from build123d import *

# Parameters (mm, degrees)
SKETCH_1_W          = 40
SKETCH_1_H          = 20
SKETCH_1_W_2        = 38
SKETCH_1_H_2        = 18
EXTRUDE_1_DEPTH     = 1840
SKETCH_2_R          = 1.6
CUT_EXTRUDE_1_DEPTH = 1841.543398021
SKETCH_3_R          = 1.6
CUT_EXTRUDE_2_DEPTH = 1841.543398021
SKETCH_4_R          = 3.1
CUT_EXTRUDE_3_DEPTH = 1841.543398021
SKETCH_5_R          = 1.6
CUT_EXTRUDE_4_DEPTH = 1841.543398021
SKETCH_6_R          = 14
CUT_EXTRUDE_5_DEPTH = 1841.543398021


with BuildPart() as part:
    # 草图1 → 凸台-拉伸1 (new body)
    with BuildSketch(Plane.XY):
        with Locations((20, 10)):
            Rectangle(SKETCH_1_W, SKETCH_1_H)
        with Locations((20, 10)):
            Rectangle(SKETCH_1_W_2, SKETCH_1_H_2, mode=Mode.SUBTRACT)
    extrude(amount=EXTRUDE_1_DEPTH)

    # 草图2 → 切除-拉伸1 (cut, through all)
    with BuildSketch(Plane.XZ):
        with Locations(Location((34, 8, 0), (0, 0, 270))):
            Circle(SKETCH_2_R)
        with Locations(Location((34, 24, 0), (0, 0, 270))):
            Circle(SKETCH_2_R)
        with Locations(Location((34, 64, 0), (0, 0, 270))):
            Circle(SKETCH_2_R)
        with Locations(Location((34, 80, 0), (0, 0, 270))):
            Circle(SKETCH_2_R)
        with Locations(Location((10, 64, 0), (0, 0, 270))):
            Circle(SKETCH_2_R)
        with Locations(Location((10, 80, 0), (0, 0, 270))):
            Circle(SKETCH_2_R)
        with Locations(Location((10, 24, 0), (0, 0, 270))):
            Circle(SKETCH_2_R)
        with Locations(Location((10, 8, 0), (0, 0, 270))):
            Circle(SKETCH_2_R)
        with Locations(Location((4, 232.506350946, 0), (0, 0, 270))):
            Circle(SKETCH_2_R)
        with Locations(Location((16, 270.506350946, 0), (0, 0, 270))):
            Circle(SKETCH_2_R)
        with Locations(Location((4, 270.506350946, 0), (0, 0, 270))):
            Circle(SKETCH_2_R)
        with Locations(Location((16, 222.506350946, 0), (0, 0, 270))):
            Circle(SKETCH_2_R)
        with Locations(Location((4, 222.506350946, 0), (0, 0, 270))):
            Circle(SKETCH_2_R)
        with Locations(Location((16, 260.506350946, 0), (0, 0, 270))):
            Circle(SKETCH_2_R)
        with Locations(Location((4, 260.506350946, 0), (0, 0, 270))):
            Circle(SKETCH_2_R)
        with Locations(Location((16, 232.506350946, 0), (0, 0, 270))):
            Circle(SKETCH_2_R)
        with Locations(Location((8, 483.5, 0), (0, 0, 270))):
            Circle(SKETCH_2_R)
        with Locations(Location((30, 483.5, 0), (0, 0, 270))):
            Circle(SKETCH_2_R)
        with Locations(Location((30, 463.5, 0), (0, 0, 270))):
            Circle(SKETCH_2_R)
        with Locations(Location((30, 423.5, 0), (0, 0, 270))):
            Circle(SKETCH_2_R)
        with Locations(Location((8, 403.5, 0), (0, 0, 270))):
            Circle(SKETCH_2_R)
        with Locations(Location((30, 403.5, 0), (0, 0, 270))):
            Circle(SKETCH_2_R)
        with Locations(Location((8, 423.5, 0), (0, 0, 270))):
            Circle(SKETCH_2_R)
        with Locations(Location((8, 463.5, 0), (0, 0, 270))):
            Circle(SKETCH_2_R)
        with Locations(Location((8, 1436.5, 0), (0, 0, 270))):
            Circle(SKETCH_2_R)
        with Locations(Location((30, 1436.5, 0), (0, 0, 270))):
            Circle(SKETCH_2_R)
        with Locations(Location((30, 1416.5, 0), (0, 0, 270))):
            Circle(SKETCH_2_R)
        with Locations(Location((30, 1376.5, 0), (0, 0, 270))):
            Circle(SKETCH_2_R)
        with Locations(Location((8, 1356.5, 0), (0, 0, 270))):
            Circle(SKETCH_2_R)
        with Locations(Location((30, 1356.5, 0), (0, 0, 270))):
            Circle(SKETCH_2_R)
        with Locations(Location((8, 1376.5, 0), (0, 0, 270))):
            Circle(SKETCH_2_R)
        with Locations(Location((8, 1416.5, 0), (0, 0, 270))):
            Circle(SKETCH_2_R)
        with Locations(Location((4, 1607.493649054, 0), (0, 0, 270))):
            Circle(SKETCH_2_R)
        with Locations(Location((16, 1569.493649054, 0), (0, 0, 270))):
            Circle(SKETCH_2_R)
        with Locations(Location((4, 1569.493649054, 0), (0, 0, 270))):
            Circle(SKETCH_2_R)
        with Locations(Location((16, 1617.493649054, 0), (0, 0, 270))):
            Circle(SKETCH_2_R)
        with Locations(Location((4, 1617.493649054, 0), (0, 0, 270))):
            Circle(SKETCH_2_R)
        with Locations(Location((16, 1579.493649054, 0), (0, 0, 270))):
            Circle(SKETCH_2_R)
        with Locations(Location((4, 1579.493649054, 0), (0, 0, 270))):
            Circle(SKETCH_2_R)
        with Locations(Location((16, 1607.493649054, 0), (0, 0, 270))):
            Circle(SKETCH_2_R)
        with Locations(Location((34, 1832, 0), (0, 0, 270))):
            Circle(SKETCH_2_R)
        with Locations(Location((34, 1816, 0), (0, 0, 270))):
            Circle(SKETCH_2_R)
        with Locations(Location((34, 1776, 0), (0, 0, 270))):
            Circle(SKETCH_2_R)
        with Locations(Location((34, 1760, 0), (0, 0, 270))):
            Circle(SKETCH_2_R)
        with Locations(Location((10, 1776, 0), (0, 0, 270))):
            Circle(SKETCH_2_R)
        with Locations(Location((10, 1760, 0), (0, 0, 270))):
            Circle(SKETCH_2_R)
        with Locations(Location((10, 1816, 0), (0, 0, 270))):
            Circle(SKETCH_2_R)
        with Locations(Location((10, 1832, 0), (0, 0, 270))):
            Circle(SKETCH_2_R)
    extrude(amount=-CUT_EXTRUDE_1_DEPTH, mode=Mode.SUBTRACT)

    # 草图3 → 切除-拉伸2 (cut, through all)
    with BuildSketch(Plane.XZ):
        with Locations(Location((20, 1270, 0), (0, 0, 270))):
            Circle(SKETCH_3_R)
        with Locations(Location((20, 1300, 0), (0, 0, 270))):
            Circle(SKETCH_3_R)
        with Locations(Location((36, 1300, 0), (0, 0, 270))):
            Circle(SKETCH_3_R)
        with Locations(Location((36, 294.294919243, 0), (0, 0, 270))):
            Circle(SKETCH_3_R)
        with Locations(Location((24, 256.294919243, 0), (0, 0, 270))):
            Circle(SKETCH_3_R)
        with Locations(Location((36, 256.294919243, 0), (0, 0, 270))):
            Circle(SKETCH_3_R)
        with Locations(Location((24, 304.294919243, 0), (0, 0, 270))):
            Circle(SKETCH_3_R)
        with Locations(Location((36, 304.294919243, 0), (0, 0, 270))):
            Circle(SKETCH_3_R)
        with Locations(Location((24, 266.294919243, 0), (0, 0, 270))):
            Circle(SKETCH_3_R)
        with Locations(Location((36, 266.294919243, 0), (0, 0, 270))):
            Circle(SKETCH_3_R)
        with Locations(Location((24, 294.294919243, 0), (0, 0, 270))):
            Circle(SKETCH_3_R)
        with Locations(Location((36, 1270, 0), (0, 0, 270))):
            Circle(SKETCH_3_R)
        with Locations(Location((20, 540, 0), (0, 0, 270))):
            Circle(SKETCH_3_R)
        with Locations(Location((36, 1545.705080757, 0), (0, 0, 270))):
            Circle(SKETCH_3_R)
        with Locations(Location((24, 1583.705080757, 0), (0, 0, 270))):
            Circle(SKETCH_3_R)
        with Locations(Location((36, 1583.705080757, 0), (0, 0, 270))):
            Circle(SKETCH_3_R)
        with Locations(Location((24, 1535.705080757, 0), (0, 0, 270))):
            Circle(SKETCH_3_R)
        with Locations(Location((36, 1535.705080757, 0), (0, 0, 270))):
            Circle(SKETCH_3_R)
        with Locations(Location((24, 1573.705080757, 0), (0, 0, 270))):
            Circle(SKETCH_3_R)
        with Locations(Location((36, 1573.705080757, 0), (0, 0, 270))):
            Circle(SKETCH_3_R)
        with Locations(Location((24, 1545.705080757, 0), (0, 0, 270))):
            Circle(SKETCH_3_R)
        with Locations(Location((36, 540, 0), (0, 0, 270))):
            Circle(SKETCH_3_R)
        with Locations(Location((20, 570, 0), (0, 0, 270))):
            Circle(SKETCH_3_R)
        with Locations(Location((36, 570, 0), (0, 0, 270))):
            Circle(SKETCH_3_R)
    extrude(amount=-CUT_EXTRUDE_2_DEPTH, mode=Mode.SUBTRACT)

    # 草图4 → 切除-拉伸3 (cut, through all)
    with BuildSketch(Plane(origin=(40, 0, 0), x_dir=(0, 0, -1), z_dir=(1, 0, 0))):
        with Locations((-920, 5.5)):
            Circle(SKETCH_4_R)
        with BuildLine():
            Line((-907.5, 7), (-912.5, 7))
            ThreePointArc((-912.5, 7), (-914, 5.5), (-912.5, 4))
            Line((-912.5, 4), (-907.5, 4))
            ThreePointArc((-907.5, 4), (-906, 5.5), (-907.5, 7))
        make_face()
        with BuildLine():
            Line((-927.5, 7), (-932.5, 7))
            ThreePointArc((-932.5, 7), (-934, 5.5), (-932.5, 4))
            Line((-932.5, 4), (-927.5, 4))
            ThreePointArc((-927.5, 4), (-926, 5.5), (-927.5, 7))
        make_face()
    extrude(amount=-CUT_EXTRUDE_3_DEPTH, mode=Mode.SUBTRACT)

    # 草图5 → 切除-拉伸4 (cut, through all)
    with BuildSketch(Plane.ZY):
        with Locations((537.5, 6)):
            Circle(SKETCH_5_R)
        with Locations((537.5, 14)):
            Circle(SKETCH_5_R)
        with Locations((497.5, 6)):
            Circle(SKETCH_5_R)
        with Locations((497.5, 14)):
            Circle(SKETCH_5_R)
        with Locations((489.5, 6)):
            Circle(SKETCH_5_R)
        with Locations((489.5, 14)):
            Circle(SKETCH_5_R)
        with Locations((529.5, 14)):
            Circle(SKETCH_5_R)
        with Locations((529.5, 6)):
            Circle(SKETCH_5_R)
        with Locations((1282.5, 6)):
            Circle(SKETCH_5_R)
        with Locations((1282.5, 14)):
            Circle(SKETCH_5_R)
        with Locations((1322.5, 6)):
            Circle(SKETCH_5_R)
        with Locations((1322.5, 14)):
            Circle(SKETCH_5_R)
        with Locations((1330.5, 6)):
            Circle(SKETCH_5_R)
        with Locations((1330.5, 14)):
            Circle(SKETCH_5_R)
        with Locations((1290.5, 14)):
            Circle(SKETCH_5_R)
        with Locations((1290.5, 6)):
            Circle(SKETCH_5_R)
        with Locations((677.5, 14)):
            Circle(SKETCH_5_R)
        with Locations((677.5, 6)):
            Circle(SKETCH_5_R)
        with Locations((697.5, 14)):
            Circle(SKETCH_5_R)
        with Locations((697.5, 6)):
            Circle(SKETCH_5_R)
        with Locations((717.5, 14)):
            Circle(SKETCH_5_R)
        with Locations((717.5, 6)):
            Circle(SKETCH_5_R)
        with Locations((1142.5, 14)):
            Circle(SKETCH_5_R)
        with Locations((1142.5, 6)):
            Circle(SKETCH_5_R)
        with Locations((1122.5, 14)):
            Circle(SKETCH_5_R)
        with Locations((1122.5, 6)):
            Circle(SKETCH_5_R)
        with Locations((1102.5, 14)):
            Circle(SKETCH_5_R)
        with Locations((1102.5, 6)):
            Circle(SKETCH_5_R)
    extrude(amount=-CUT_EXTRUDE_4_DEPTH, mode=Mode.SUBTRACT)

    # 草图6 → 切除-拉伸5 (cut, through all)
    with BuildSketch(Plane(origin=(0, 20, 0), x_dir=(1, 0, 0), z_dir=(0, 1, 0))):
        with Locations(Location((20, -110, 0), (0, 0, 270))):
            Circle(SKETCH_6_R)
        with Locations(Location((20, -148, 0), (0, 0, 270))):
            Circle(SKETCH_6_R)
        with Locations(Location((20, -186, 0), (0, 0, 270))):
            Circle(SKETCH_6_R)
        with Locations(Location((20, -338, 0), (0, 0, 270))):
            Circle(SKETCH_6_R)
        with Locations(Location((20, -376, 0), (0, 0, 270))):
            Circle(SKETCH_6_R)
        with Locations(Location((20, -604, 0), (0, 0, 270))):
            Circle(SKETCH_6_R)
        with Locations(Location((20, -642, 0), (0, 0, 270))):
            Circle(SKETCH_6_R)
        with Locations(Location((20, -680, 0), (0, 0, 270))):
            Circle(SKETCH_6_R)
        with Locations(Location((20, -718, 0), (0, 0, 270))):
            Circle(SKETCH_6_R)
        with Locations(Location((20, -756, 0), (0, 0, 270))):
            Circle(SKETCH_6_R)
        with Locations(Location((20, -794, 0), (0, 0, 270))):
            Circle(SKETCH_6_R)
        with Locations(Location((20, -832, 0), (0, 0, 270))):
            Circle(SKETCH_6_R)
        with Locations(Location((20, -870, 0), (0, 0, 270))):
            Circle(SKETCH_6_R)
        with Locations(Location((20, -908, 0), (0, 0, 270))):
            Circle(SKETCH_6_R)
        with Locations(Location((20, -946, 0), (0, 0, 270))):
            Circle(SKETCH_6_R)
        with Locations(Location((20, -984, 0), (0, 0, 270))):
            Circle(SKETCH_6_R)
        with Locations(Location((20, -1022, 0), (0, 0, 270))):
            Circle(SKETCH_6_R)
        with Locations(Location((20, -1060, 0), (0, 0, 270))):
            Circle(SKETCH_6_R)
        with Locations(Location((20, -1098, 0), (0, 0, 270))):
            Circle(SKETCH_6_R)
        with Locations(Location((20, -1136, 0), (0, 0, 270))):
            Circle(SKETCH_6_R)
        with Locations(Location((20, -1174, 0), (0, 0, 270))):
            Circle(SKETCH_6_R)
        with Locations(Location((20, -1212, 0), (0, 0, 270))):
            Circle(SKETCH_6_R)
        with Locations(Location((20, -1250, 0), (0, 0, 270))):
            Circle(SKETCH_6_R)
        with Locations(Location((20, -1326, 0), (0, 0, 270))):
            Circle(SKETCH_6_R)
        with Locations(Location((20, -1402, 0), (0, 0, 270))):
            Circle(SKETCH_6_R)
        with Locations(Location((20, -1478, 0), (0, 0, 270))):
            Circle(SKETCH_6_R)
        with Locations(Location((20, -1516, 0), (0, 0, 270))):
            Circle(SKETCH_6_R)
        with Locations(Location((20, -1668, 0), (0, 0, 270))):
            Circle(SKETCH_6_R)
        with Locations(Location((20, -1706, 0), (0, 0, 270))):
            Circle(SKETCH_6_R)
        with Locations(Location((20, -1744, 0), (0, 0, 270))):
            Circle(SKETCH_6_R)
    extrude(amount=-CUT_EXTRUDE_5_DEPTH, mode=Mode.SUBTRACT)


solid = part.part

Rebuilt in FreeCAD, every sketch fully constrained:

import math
import FreeCAD as App
import Part
import Sketcher
from FreeCAD import Vector
Q = App.Units.Quantity


def add_polygon(sketch, points):
    """Adds a closed chain of lines whose ends are joined by coincident constraints."""
    first, n = sketch.GeometryCount, len(points)
    for a, b in zip(points, points[1:] + points[:1]):
        sketch.addGeometry(Part.LineSegment(App.Vector(*a, 0), App.Vector(*b, 0)), False)
    for i in range(n):
        sketch.addConstraint(Sketcher.Constraint("Coincident", first + i, 2, first + (i + 1) % n, 1))

doc = App.newDocument("Part")
params = doc.addObject("Spreadsheet::Sheet", "Params")
for row, (alias, value) in enumerate([
    ("sketch1_width", "40 mm"),
    ("sketch1_width2", "38 mm"),
    ("sketch1_height", "20 mm"),
    ("sketch1_height2", "18 mm"),
    ("pad1_length", "1840 mm"),
    ("sketch2_diameter", "3.2 mm"),
    ("sketch3_diameter", "3.2 mm"),
    ("sketch4_diameter", "6.2 mm"),
    ("sketch4_radius", "1.5 mm"),
    ("sketch4_height", "5 mm"),
    ("sketch5_diameter", "3.2 mm"),
    ("sketch6_diameter", "28 mm"),
], start=1):
    params.set(f"A{row}", alias)
    params.set(f"B{row}", "=" + value)
    params.setAlias(f"B{row}", alias)

body = doc.addObject("PartDesign::Body", "Body")

# Sketch on XY plane
sketch1 = body.newObject("Sketcher::SketchObject", "Sketch")
sketch1.AttachmentSupport = (doc.getObject("XY_Plane"), [""])
sketch1.MapMode = "FlatFace"
add_polygon(sketch1, [(0, 20), (0, 0), (40, 0), (40, 20)])  # lines 0-3
add_polygon(sketch1, [(39, 1), (1, 1), (1, 19), (39, 19)])  # lines 4-7
sketch1.addConstraint([
    Sketcher.Constraint("Vertical", 0),
    Sketcher.Constraint("Horizontal", 1),
    Sketcher.Constraint("Vertical", 2),
    Sketcher.Constraint("Horizontal", 3),
    Sketcher.Constraint("Horizontal", 4),
    Sketcher.Constraint("Vertical", 5),
    Sketcher.Constraint("Horizontal", 6),
    Sketcher.Constraint("Vertical", 7),
    Sketcher.Constraint("Coincident", 0, 2, -1, 1),
    Sketcher.Constraint("DistanceX", 1, 1, 1, 2, Q("40 mm")),
    Sketcher.Constraint("DistanceX", 4, 2, 4, 1, Q("38 mm")),
    Sketcher.Constraint("DistanceY", 0, 2, 0, 1, Q("20 mm")),
    Sketcher.Constraint("DistanceY", 5, 1, 5, 2, Q("18 mm")),
    Sketcher.Constraint("DistanceX", -1, 1, 4, 2, Q("1 mm")),
    Sketcher.Constraint("DistanceY", -1, 1, 4, 2, Q("1 mm")),
])
sketch1.setExpression("Constraints[17]", "Params.sketch1_width")
sketch1.setExpression("Constraints[18]", "Params.sketch1_width2")
sketch1.setExpression("Constraints[19]", "Params.sketch1_height")
sketch1.setExpression("Constraints[20]", "Params.sketch1_height2")
pad1 = body.newObject("PartDesign::Pad", "Pad")
pad1.Profile = sketch1
pad1.setExpression("Length", "Params.pad1_length")

# Sketch on XZ plane
sketch2 = body.newObject("Sketcher::SketchObject", "Sketch001")
sketch2.AttachmentSupport = (doc.getObject("XZ_Plane"), [""])
sketch2.MapMode = "FlatFace"
sketch2.addGeometry([
    Part.Circle(Vector(34, 8, 0), Vector(0, 0, 1), 1.6),  # 0
    Part.Circle(Vector(34, 24, 0), Vector(0, 0, 1), 1.6),  # 1
    Part.Circle(Vector(34, 64, 0), Vector(0, 0, 1), 1.6),  # 2
    Part.Circle(Vector(34, 80, 0), Vector(0, 0, 1), 1.6),  # 3
    Part.Circle(Vector(10, 64, 0), Vector(0, 0, 1), 1.6),  # 4
    Part.Circle(Vector(10, 80, 0), Vector(0, 0, 1), 1.6),  # 5
    Part.Circle(Vector(10, 24, 0), Vector(0, 0, 1), 1.6),  # 6
    Part.Circle(Vector(10, 8, 0), Vector(0, 0, 1), 1.6),  # 7
    Part.Circle(Vector(4, 232.5, 0), Vector(0, 0, 1), 1.6),  # 8
    Part.Circle(Vector(16, 270.5, 0), Vector(0, 0, 1), 1.6),  # 9
    Part.Circle(Vector(4, 270.5, 0), Vector(0, 0, 1), 1.6),  # 10
    Part.Circle(Vector(16, 222.5, 0), Vector(0, 0, 1), 1.6),  # 11
    Part.Circle(Vector(4, 222.5, 0), Vector(0, 0, 1), 1.6),  # 12
    Part.Circle(Vector(16, 260.5, 0), Vector(0, 0, 1), 1.6),  # 13
    Part.Circle(Vector(4, 260.5, 0), Vector(0, 0, 1), 1.6),  # 14
    Part.Circle(Vector(16, 232.5, 0), Vector(0, 0, 1), 1.6),  # 15
    Part.Circle(Vector(8, 483.5, 0), Vector(0, 0, 1), 1.6),  # 16
    Part.Circle(Vector(30, 483.5, 0), Vector(0, 0, 1), 1.6),  # 17
    Part.Circle(Vector(30, 463.5, 0), Vector(0, 0, 1), 1.6),  # 18
    Part.Circle(Vector(30, 423.5, 0), Vector(0, 0, 1), 1.6),  # 19
    Part.Circle(Vector(8, 403.5, 0), Vector(0, 0, 1), 1.6),  # 20
    Part.Circle(Vector(30, 403.5, 0), Vector(0, 0, 1), 1.6),  # 21
    Part.Circle(Vector(8, 423.5, 0), Vector(0, 0, 1), 1.6),  # 22
    Part.Circle(Vector(8, 463.5, 0), Vector(0, 0, 1), 1.6),  # 23
    Part.Circle(Vector(8, 1436.5, 0), Vector(0, 0, 1), 1.6),  # 24
    Part.Circle(Vector(30, 1436.5, 0), Vector(0, 0, 1), 1.6),  # 25
    Part.Circle(Vector(30, 1416.5, 0), Vector(0, 0, 1), 1.6),  # 26
    Part.Circle(Vector(30, 1376.5, 0), Vector(0, 0, 1), 1.6),  # 27
    Part.Circle(Vector(8, 1356.5, 0), Vector(0, 0, 1), 1.6),  # 28
    Part.Circle(Vector(30, 1356.5, 0), Vector(0, 0, 1), 1.6),  # 29
    Part.Circle(Vector(8, 1376.5, 0), Vector(0, 0, 1), 1.6),  # 30
    Part.Circle(Vector(8, 1416.5, 0), Vector(0, 0, 1), 1.6),  # 31
    Part.Circle(Vector(4, 1607.5, 0), Vector(0, 0, 1), 1.6),  # 32
    Part.Circle(Vector(16, 1569.5, 0), Vector(0, 0, 1), 1.6),  # 33
    Part.Circle(Vector(4, 1569.5, 0), Vector(0, 0, 1), 1.6),  # 34
    Part.Circle(Vector(16, 1617.5, 0), Vector(0, 0, 1), 1.6),  # 35
    Part.Circle(Vector(4, 1617.5, 0), Vector(0, 0, 1), 1.6),  # 36
    Part.Circle(Vector(16, 1579.5, 0), Vector(0, 0, 1), 1.6),  # 37
    Part.Circle(Vector(4, 1579.5, 0), Vector(0, 0, 1), 1.6),  # 38
    Part.Circle(Vector(16, 1607.5, 0), Vector(0, 0, 1), 1.6),  # 39
    Part.Circle(Vector(34, 1832, 0), Vector(0, 0, 1), 1.6),  # 40
    Part.Circle(Vector(34, 1816, 0), Vector(0, 0, 1), 1.6),  # 41
    Part.Circle(Vector(34, 1776, 0), Vector(0, 0, 1), 1.6),  # 42
    Part.Circle(Vector(34, 1760, 0), Vector(0, 0, 1), 1.6),  # 43
    Part.Circle(Vector(10, 1776, 0), Vector(0, 0, 1), 1.6),  # 44
    Part.Circle(Vector(10, 1760, 0), Vector(0, 0, 1), 1.6),  # 45
    Part.Circle(Vector(10, 1816, 0), Vector(0, 0, 1), 1.6),  # 46
    Part.Circle(Vector(10, 1832, 0), Vector(0, 0, 1), 1.6),  # 47
], False)
sketch2.addConstraint([
    Sketcher.Constraint("Equal", 0, 1),
    Sketcher.Constraint("Equal", 1, 2),
    Sketcher.Constraint("Equal", 2, 3),
    Sketcher.Constraint("Equal", 3, 4),
    Sketcher.Constraint("Equal", 4, 5),
    Sketcher.Constraint("Equal", 5, 6),
    Sketcher.Constraint("Equal", 6, 7),
    Sketcher.Constraint("Equal", 7, 8),
    Sketcher.Constraint("Equal", 8, 9),
    Sketcher.Constraint("Equal", 9, 10),
    Sketcher.Constraint("Equal", 10, 11),
    Sketcher.Constraint("Equal", 11, 12),
    Sketcher.Constraint("Equal", 12, 13),
    Sketcher.Constraint("Equal", 13, 14),
    Sketcher.Constraint("Equal", 14, 15),
    Sketcher.Constraint("Equal", 15, 16),
    Sketcher.Constraint("Equal", 16, 17),
    Sketcher.Constraint("Equal", 17, 18),
    Sketcher.Constraint("Equal", 18, 19),
    Sketcher.Constraint("Equal", 19, 20),
    Sketcher.Constraint("Equal", 20, 21),
    Sketcher.Constraint("Equal", 21, 22),
    Sketcher.Constraint("Equal", 22, 23),
    Sketcher.Constraint("Equal", 23, 24),
    Sketcher.Constraint("Equal", 24, 25),
    Sketcher.Constraint("Equal", 25, 26),
    Sketcher.Constraint("Equal", 26, 27),
    Sketcher.Constraint("Equal", 27, 28),
    Sketcher.Constraint("Equal", 28, 29),
    Sketcher.Constraint("Equal", 29, 30),
    Sketcher.Constraint("Equal", 30, 31),
    Sketcher.Constraint("Equal", 31, 32),
    Sketcher.Constraint("Equal", 32, 33),
    Sketcher.Constraint("Equal", 33, 34),
    Sketcher.Constraint("Equal", 34, 35),
    Sketcher.Constraint("Equal", 35, 36),
    Sketcher.Constraint("Equal", 36, 37),
    Sketcher.Constraint("Equal", 37, 38),
    Sketcher.Constraint("Equal", 38, 39),
    Sketcher.Constraint("Equal", 39, 40),
    Sketcher.Constraint("Equal", 40, 41),
    Sketcher.Constraint("Equal", 41, 42),
    Sketcher.Constraint("Equal", 42, 43),
    Sketcher.Constraint("Equal", 43, 44),
    Sketcher.Constraint("Equal", 44, 45),
    Sketcher.Constraint("Equal", 45, 46),
    Sketcher.Constraint("Equal", 46, 47),
    Sketcher.Constraint("Horizontal", 2, 3, 4, 3),
    Sketcher.Constraint("Horizontal", 3, 3, 5, 3),
    Sketcher.Constraint("Horizontal", 1, 3, 6, 3),
    Sketcher.Constraint("Horizontal", 0, 3, 7, 3),
    Sketcher.Constraint("Horizontal", 9, 3, 10, 3),
    Sketcher.Constraint("Horizontal", 11, 3, 12, 3),
    Sketcher.Constraint("Horizontal", 13, 3, 14, 3),
    Sketcher.Constraint("Horizontal", 8, 3, 15, 3),
    Sketcher.Constraint("Horizontal", 16, 3, 17, 3),
    Sketcher.Constraint("Horizontal", 20, 3, 21, 3),
    Sketcher.Constraint("Horizontal", 19, 3, 22, 3),
    Sketcher.Constraint("Horizontal", 18, 3, 23, 3),
    Sketcher.Constraint("Horizontal", 24, 3, 25, 3),
    Sketcher.Constraint("Horizontal", 28, 3, 29, 3),
    Sketcher.Constraint("Horizontal", 27, 3, 30, 3),
    Sketcher.Constraint("Horizontal", 26, 3, 31, 3),
    Sketcher.Constraint("Horizontal", 33, 3, 34, 3),
    Sketcher.Constraint("Horizontal", 35, 3, 36, 3),
    Sketcher.Constraint("Horizontal", 37, 3, 38, 3),
    Sketcher.Constraint("Horizontal", 32, 3, 39, 3),
    Sketcher.Constraint("Horizontal", 42, 3, 44, 3),
    Sketcher.Constraint("Horizontal", 43, 3, 45, 3),
    Sketcher.Constraint("Horizontal", 41, 3, 46, 3),
    Sketcher.Constraint("Horizontal", 40, 3, 47, 3),
    Sketcher.Constraint("Vertical", 0, 3, 1, 3),
    Sketcher.Constraint("Vertical", 1, 3, 2, 3),
    Sketcher.Constraint("Vertical", 2, 3, 3, 3),
    Sketcher.Constraint("Vertical", 4, 3, 5, 3),
    Sketcher.Constraint("Vertical", 5, 3, 6, 3),
    Sketcher.Constraint("Vertical", 6, 3, 7, 3),
    Sketcher.Constraint("Vertical", 8, 3, 10, 3),
    Sketcher.Constraint("Vertical", 9, 3, 11, 3),
    Sketcher.Constraint("Vertical", 10, 3, 12, 3),
    Sketcher.Constraint("Vertical", 11, 3, 13, 3),
    Sketcher.Constraint("Vertical", 12, 3, 14, 3),
    Sketcher.Constraint("Vertical", 13, 3, 15, 3),
    Sketcher.Constraint("Vertical", 17, 3, 18, 3),
    Sketcher.Constraint("Vertical", 18, 3, 19, 3),
    Sketcher.Constraint("Vertical", 16, 3, 20, 3),
    Sketcher.Constraint("Vertical", 19, 3, 21, 3),
    Sketcher.Constraint("Vertical", 20, 3, 22, 3),
    Sketcher.Constraint("Vertical", 22, 3, 23, 3),
    Sketcher.Constraint("Vertical", 23, 3, 24, 3),
    Sketcher.Constraint("Vertical", 21, 3, 25, 3),
    Sketcher.Constraint("Vertical", 25, 3, 26, 3),
    Sketcher.Constraint("Vertical", 26, 3, 27, 3),
    Sketcher.Constraint("Vertical", 24, 3, 28, 3),
    Sketcher.Constraint("Vertical", 27, 3, 29, 3),
    Sketcher.Constraint("Vertical", 28, 3, 30, 3),
    Sketcher.Constraint("Vertical", 30, 3, 31, 3),
    Sketcher.Constraint("Vertical", 14, 3, 32, 3),
    Sketcher.Constraint("Vertical", 15, 3, 33, 3),
    Sketcher.Constraint("Vertical", 32, 3, 34, 3),
    Sketcher.Constraint("Vertical", 33, 3, 35, 3),
    Sketcher.Constraint("Vertical", 34, 3, 36, 3),
    Sketcher.Constraint("Vertical", 35, 3, 37, 3),
    Sketcher.Constraint("Vertical", 36, 3, 38, 3),
    Sketcher.Constraint("Vertical", 37, 3, 39, 3),
    Sketcher.Constraint("Vertical", 3, 3, 40, 3),
    Sketcher.Constraint("Vertical", 40, 3, 41, 3),
    Sketcher.Constraint("Vertical", 41, 3, 42, 3),
    Sketcher.Constraint("Vertical", 42, 3, 43, 3),
    Sketcher.Constraint("Vertical", 7, 3, 44, 3),
    Sketcher.Constraint("Vertical", 44, 3, 45, 3),
    Sketcher.Constraint("Vertical", 45, 3, 46, 3),
    Sketcher.Constraint("Vertical", 46, 3, 47, 3),
    Sketcher.Constraint("Diameter", 0, Q("3.2 mm")),
    Sketcher.Constraint("DistanceX", -1, 1, 0, 3, Q("34 mm")),
    Sketcher.Constraint("DistanceY", -1, 1, 0, 3, Q("8 mm")),
    Sketcher.Constraint("DistanceY", -1, 1, 1, 3, Q("24 mm")),
    Sketcher.Constraint("DistanceY", -1, 1, 2, 3, Q("64 mm")),
    Sketcher.Constraint("DistanceY", -1, 1, 3, 3, Q("80 mm")),
    Sketcher.Constraint("DistanceX", -1, 1, 4, 3, Q("10 mm")),
    Sketcher.Constraint("DistanceX", -1, 1, 8, 3, Q("4 mm")),
    Sketcher.Constraint("DistanceX", -1, 1, 9, 3, Q("16 mm")),
    Sketcher.Constraint("DistanceX", -1, 1, 16, 3, Q("8 mm")),
    Sketcher.Constraint("DistanceX", -1, 1, 17, 3, Q("30 mm")),
    Sketcher.Constraint("DistanceY", -1, 1, 40, 3, Q("1832 mm")),
    Sketcher.Constraint("DistanceY", -1, 1, 41, 3, Q("1816 mm")),
    Sketcher.Constraint("DistanceY", -1, 1, 42, 3, Q("1776 mm")),
    Sketcher.Constraint("DistanceY", -1, 1, 43, 3, Q("1760 mm")),
    Sketcher.Constraint("DistanceY", 8, 3, 9, 3, Q("38 mm")),
    Sketcher.Constraint("DistanceY", 11, 3, 8, 3, Q("10 mm")),
    Sketcher.Constraint("DistanceY", 13, 3, 9, 3, Q("10 mm")),
    Sketcher.Constraint("DistanceY", 18, 3, 17, 3, Q("20 mm")),
    Sketcher.Constraint("DistanceY", 19, 3, 18, 3, Q("40 mm")),
    Sketcher.Constraint("DistanceY", 20, 3, 19, 3, Q("20 mm")),
    Sketcher.Constraint("DistanceY", 16, 3, 24, 3, Q("953 mm")),
    Sketcher.Constraint("DistanceY", 26, 3, 25, 3, Q("20 mm")),
    Sketcher.Constraint("DistanceY", 27, 3, 26, 3, Q("40 mm")),
    Sketcher.Constraint("DistanceY", 28, 3, 27, 3, Q("20 mm")),
    Sketcher.Constraint("DistanceY", 33, 3, 32, 3, Q("38 mm")),
    Sketcher.Constraint("DistanceY", 32, 3, 35, 3, Q("10 mm")),
    Sketcher.Constraint("DistanceY", 33, 3, 37, 3, Q("10 mm")),
    Sketcher.Constraint("DistanceY", -1, 1, 16, 3, Q("483.5 mm")),
    Sketcher.Constraint("DistanceY", -1, 1, 8, 3, Q("232.506351 mm")),
    Sketcher.Constraint("DistanceY", -1, 1, 32, 3, Q("1607.493649 mm")),
])
sketch2.setExpression("Constraints[113]", "Params.sketch2_diameter")
pocket1 = body.newObject("PartDesign::Pocket", "Pocket")
pocket1.Profile = sketch2
pocket1.Type = "ThroughAll"

# Sketch on XZ plane
sketch3 = body.newObject("Sketcher::SketchObject", "Sketch002")
sketch3.AttachmentSupport = (doc.getObject("XZ_Plane"), [""])
sketch3.MapMode = "FlatFace"
sketch3.addGeometry([
    Part.Circle(Vector(20, 1270, 0), Vector(0, 0, 1), 1.6),  # 0
    Part.Circle(Vector(20, 1300, 0), Vector(0, 0, 1), 1.6),  # 1
    Part.Circle(Vector(36, 1300, 0), Vector(0, 0, 1), 1.6),  # 2
    Part.Circle(Vector(36, 294.3, 0), Vector(0, 0, 1), 1.6),  # 3
    Part.Circle(Vector(24, 256.3, 0), Vector(0, 0, 1), 1.6),  # 4
    Part.Circle(Vector(36, 256.3, 0), Vector(0, 0, 1), 1.6),  # 5
    Part.Circle(Vector(24, 304.3, 0), Vector(0, 0, 1), 1.6),  # 6
    Part.Circle(Vector(36, 304.3, 0), Vector(0, 0, 1), 1.6),  # 7
    Part.Circle(Vector(24, 266.3, 0), Vector(0, 0, 1), 1.6),  # 8
    Part.Circle(Vector(36, 266.3, 0), Vector(0, 0, 1), 1.6),  # 9
    Part.Circle(Vector(24, 294.3, 0), Vector(0, 0, 1), 1.6),  # 10
    Part.Circle(Vector(36, 1270, 0), Vector(0, 0, 1), 1.6),  # 11
    Part.Circle(Vector(20, 540, 0), Vector(0, 0, 1), 1.6),  # 12
    Part.Circle(Vector(36, 1545.7, 0), Vector(0, 0, 1), 1.6),  # 13
    Part.Circle(Vector(24, 1583.7, 0), Vector(0, 0, 1), 1.6),  # 14
    Part.Circle(Vector(36, 1583.7, 0), Vector(0, 0, 1), 1.6),  # 15
    Part.Circle(Vector(24, 1535.7, 0), Vector(0, 0, 1), 1.6),  # 16
    Part.Circle(Vector(36, 1535.7, 0), Vector(0, 0, 1), 1.6),  # 17
    Part.Circle(Vector(24, 1573.7, 0), Vector(0, 0, 1), 1.6),  # 18
    Part.Circle(Vector(36, 1573.7, 0), Vector(0, 0, 1), 1.6),  # 19
    Part.Circle(Vector(24, 1545.7, 0), Vector(0, 0, 1), 1.6),  # 20
    Part.Circle(Vector(36, 540, 0), Vector(0, 0, 1), 1.6),  # 21
    Part.Circle(Vector(20, 570, 0), Vector(0, 0, 1), 1.6),  # 22
    Part.Circle(Vector(36, 570, 0), Vector(0, 0, 1), 1.6),  # 23
], False)
sketch3.addConstraint([
    Sketcher.Constraint("Equal", 0, 1),
    Sketcher.Constraint("Equal", 1, 2),
    Sketcher.Constraint("Equal", 2, 3),
    Sketcher.Constraint("Equal", 3, 4),
    Sketcher.Constraint("Equal", 4, 5),
    Sketcher.Constraint("Equal", 5, 6),
    Sketcher.Constraint("Equal", 6, 7),
    Sketcher.Constraint("Equal", 7, 8),
    Sketcher.Constraint("Equal", 8, 9),
    Sketcher.Constraint("Equal", 9, 10),
    Sketcher.Constraint("Equal", 10, 11),
    Sketcher.Constraint("Equal", 11, 12),
    Sketcher.Constraint("Equal", 12, 13),
    Sketcher.Constraint("Equal", 13, 14),
    Sketcher.Constraint("Equal", 14, 15),
    Sketcher.Constraint("Equal", 15, 16),
    Sketcher.Constraint("Equal", 16, 17),
    Sketcher.Constraint("Equal", 17, 18),
    Sketcher.Constraint("Equal", 18, 19),
    Sketcher.Constraint("Equal", 19, 20),
    Sketcher.Constraint("Equal", 20, 21),
    Sketcher.Constraint("Equal", 21, 22),
    Sketcher.Constraint("Equal", 22, 23),
    Sketcher.Constraint("Horizontal", 1, 3, 2, 3),
    Sketcher.Constraint("Horizontal", 4, 3, 5, 3),
    Sketcher.Constraint("Horizontal", 6, 3, 7, 3),
    Sketcher.Constraint("Horizontal", 8, 3, 9, 3),
    Sketcher.Constraint("Horizontal", 3, 3, 10, 3),
    Sketcher.Constraint("Horizontal", 0, 3, 11, 3),
    Sketcher.Constraint("Horizontal", 14, 3, 15, 3),
    Sketcher.Constraint("Horizontal", 16, 3, 17, 3),
    Sketcher.Constraint("Horizontal", 18, 3, 19, 3),
    Sketcher.Constraint("Horizontal", 13, 3, 20, 3),
    Sketcher.Constraint("Horizontal", 12, 3, 21, 3),
    Sketcher.Constraint("Horizontal", 22, 3, 23, 3),
    Sketcher.Constraint("Vertical", 0, 3, 1, 3),
    Sketcher.Constraint("Vertical", 2, 3, 3, 3),
    Sketcher.Constraint("Vertical", 3, 3, 5, 3),
    Sketcher.Constraint("Vertical", 4, 3, 6, 3),
    Sketcher.Constraint("Vertical", 5, 3, 7, 3),
    Sketcher.Constraint("Vertical", 6, 3, 8, 3),
    Sketcher.Constraint("Vertical", 7, 3, 9, 3),
    Sketcher.Constraint("Vertical", 8, 3, 10, 3),
    Sketcher.Constraint("Vertical", 9, 3, 11, 3),
    Sketcher.Constraint("Vertical", 1, 3, 12, 3),
    Sketcher.Constraint("Vertical", 11, 3, 13, 3),
    Sketcher.Constraint("Vertical", 10, 3, 14, 3),
    Sketcher.Constraint("Vertical", 13, 3, 15, 3),
    Sketcher.Constraint("Vertical", 14, 3, 16, 3),
    Sketcher.Constraint("Vertical", 15, 3, 17, 3),
    Sketcher.Constraint("Vertical", 16, 3, 18, 3),
    Sketcher.Constraint("Vertical", 17, 3, 19, 3),
    Sketcher.Constraint("Vertical", 18, 3, 20, 3),
    Sketcher.Constraint("Vertical", 19, 3, 21, 3),
    Sketcher.Constraint("Vertical", 12, 3, 22, 3),
    Sketcher.Constraint("Vertical", 21, 3, 23, 3),
    Sketcher.Constraint("Diameter", 0, Q("3.2 mm")),
    Sketcher.Constraint("DistanceX", -1, 1, 0, 3, Q("20 mm")),
    Sketcher.Constraint("DistanceY", -1, 1, 0, 3, Q("1270 mm")),
    Sketcher.Constraint("DistanceY", -1, 1, 1, 3, Q("1300 mm")),
    Sketcher.Constraint("DistanceX", -1, 1, 2, 3, Q("36 mm")),
    Sketcher.Constraint("DistanceX", -1, 1, 4, 3, Q("24 mm")),
    Sketcher.Constraint("DistanceY", -1, 1, 12, 3, Q("540 mm")),
    Sketcher.Constraint("DistanceY", -1, 1, 22, 3, Q("570 mm")),
    Sketcher.Constraint("DistanceY", 4, 3, 3, 3, Q("38 mm")),
    Sketcher.Constraint("DistanceY", 3, 3, 6, 3, Q("10 mm")),
    Sketcher.Constraint("DistanceY", 4, 3, 8, 3, Q("10 mm")),
    Sketcher.Constraint("DistanceY", 13, 3, 14, 3, Q("38 mm")),
    Sketcher.Constraint("DistanceY", 16, 3, 13, 3, Q("10 mm")),
    Sketcher.Constraint("DistanceY", 18, 3, 14, 3, Q("10 mm")),
    Sketcher.Constraint("DistanceY", -1, 1, 3, 3, Q("294.294919 mm")),
    Sketcher.Constraint("DistanceY", -1, 1, 13, 3, Q("1545.705081 mm")),
])
sketch3.setExpression("Constraints[56]", "Params.sketch3_diameter")
pocket2 = body.newObject("PartDesign::Pocket", "Pocket001")
pocket2.Profile = sketch3
pocket2.Type = "ThroughAll"

# Sketch on YZ plane
sketch4 = body.newObject("Sketcher::SketchObject", "Sketch003")
sketch4.AttachmentSupport = (doc.getObject("YZ_Plane"), [""])
sketch4.MapMode = "FlatFace"
sketch4.AttachmentOffset = App.Placement(Vector(0, 0, 40), App.Rotation())
sketch4.addGeometry([
    Part.Circle(Vector(5.5, 920, 0), Vector(0, 0, 1), 3.1),  # 0
    Part.LineSegment(Vector(7, 907.5, 0), Vector(7, 912.5, 0)),  # 1
    Part.ArcOfCircle(Part.Circle(Vector(5.5, 912.5, 0), Vector(0, 0, 1), 1.5), math.radians(0), math.radians(180)),  # 2
    Part.LineSegment(Vector(4, 912.5, 0), Vector(4, 907.5, 0)),  # 3
    Part.ArcOfCircle(Part.Circle(Vector(5.5, 907.5, 0), Vector(0, 0, 1), 1.5), math.radians(180), math.radians(360)),  # 4
    Part.LineSegment(Vector(7, 927.5, 0), Vector(7, 932.5, 0)),  # 5
    Part.ArcOfCircle(Part.Circle(Vector(5.5, 932.5, 0), Vector(0, 0, 1), 1.5), math.radians(0), math.radians(180)),  # 6
    Part.LineSegment(Vector(4, 932.5, 0), Vector(4, 927.5, 0)),  # 7
    Part.ArcOfCircle(Part.Circle(Vector(5.5, 927.5, 0), Vector(0, 0, 1), 1.5), math.radians(180), math.radians(360)),  # 8
], False)
sketch4.addConstraint([
    Sketcher.Constraint("Tangent", 1, 2, 2, 1),
    Sketcher.Constraint("Tangent", 2, 2, 3, 1),
    Sketcher.Constraint("Tangent", 3, 2, 4, 1),
    Sketcher.Constraint("Tangent", 4, 2, 1, 1),
    Sketcher.Constraint("Tangent", 5, 2, 6, 1),
    Sketcher.Constraint("Tangent", 6, 2, 7, 1),
    Sketcher.Constraint("Tangent", 7, 2, 8, 1),
    Sketcher.Constraint("Tangent", 8, 2, 5, 1),
    Sketcher.Constraint("Vertical", 1),
    Sketcher.Constraint("Vertical", 3),
    Sketcher.Constraint("Vertical", 5),
    Sketcher.Constraint("Vertical", 7),
    Sketcher.Constraint("Equal", 4, 6),
    Sketcher.Constraint("Vertical", 0, 3, 2, 3),
    Sketcher.Constraint("Vertical", 4, 3, 6, 3),
    Sketcher.Constraint("Equal", 3, 5),
    Sketcher.Constraint("Diameter", 0, Q("6.2 mm")),
    Sketcher.Constraint("Radius", 2, Q("1.5 mm")),
    Sketcher.Constraint("DistanceY", 1, 1, 1, 2, Q("5 mm")),
    Sketcher.Constraint("DistanceY", -1, 1, 0, 3, Q("920 mm")),
    Sketcher.Constraint("DistanceX", -1, 1, 1, 2, Q("7 mm")),
    Sketcher.Constraint("DistanceY", 2, 3, 6, 3, Q("20 mm")),
    Sketcher.Constraint("DistanceY", -1, 1, 2, 3, Q("912.5 mm")),
])
sketch4.setExpression("Constraints[16]", "Params.sketch4_diameter")
sketch4.setExpression("Constraints[17]", "Params.sketch4_radius")
sketch4.setExpression("Constraints[18]", "Params.sketch4_height")
pocket3 = body.newObject("PartDesign::Pocket", "Pocket002")
pocket3.Profile = sketch4
pocket3.Type = "ThroughAll"

# Sketch on YZ plane
sketch5 = body.newObject("Sketcher::SketchObject", "Sketch004")
sketch5.AttachmentSupport = (doc.getObject("YZ_Plane"), [""])
sketch5.MapMode = "FlatFace"
sketch5.addGeometry([
    Part.Circle(Vector(6, 537.5, 0), Vector(0, 0, 1), 1.6),  # 0
    Part.Circle(Vector(14, 537.5, 0), Vector(0, 0, 1), 1.6),  # 1
    Part.Circle(Vector(6, 497.5, 0), Vector(0, 0, 1), 1.6),  # 2
    Part.Circle(Vector(14, 497.5, 0), Vector(0, 0, 1), 1.6),  # 3
    Part.Circle(Vector(6, 489.5, 0), Vector(0, 0, 1), 1.6),  # 4
    Part.Circle(Vector(14, 489.5, 0), Vector(0, 0, 1), 1.6),  # 5
    Part.Circle(Vector(14, 529.5, 0), Vector(0, 0, 1), 1.6),  # 6
    Part.Circle(Vector(6, 529.5, 0), Vector(0, 0, 1), 1.6),  # 7
    Part.Circle(Vector(6, 1282.5, 0), Vector(0, 0, 1), 1.6),  # 8
    Part.Circle(Vector(14, 1282.5, 0), Vector(0, 0, 1), 1.6),  # 9
    Part.Circle(Vector(6, 1322.5, 0), Vector(0, 0, 1), 1.6),  # 10
    Part.Circle(Vector(14, 1322.5, 0), Vector(0, 0, 1), 1.6),  # 11
    Part.Circle(Vector(6, 1330.5, 0), Vector(0, 0, 1), 1.6),  # 12
    Part.Circle(Vector(14, 1330.5, 0), Vector(0, 0, 1), 1.6),  # 13
    Part.Circle(Vector(14, 1290.5, 0), Vector(0, 0, 1), 1.6),  # 14
    Part.Circle(Vector(6, 1290.5, 0), Vector(0, 0, 1), 1.6),  # 15
    Part.Circle(Vector(14, 677.5, 0), Vector(0, 0, 1), 1.6),  # 16
    Part.Circle(Vector(6, 677.5, 0), Vector(0, 0, 1), 1.6),  # 17
    Part.Circle(Vector(14, 697.5, 0), Vector(0, 0, 1), 1.6),  # 18
    Part.Circle(Vector(6, 697.5, 0), Vector(0, 0, 1), 1.6),  # 19
    Part.Circle(Vector(14, 717.5, 0), Vector(0, 0, 1), 1.6),  # 20
    Part.Circle(Vector(6, 717.5, 0), Vector(0, 0, 1), 1.6),  # 21
    Part.Circle(Vector(14, 1142.5, 0), Vector(0, 0, 1), 1.6),  # 22
    Part.Circle(Vector(6, 1142.5, 0), Vector(0, 0, 1), 1.6),  # 23
    Part.Circle(Vector(14, 1122.5, 0), Vector(0, 0, 1), 1.6),  # 24
    Part.Circle(Vector(6, 1122.5, 0), Vector(0, 0, 1), 1.6),  # 25
    Part.Circle(Vector(14, 1102.5, 0), Vector(0, 0, 1), 1.6),  # 26
    Part.Circle(Vector(6, 1102.5, 0), Vector(0, 0, 1), 1.6),  # 27
], False)
sketch5.addConstraint([
    Sketcher.Constraint("Equal", 0, 1),
    Sketcher.Constraint("Equal", 1, 2),
    Sketcher.Constraint("Equal", 2, 3),
    Sketcher.Constraint("Equal", 3, 4),
    Sketcher.Constraint("Equal", 4, 5),
    Sketcher.Constraint("Equal", 5, 6),
    Sketcher.Constraint("Equal", 6, 7),
    Sketcher.Constraint("Equal", 7, 8),
    Sketcher.Constraint("Equal", 8, 9),
    Sketcher.Constraint("Equal", 9, 10),
    Sketcher.Constraint("Equal", 10, 11),
    Sketcher.Constraint("Equal", 11, 12),
    Sketcher.Constraint("Equal", 12, 13),
    Sketcher.Constraint("Equal", 13, 14),
    Sketcher.Constraint("Equal", 14, 15),
    Sketcher.Constraint("Equal", 15, 16),
    Sketcher.Constraint("Equal", 16, 17),
    Sketcher.Constraint("Equal", 17, 18),
    Sketcher.Constraint("Equal", 18, 19),
    Sketcher.Constraint("Equal", 19, 20),
    Sketcher.Constraint("Equal", 20, 21),
    Sketcher.Constraint("Equal", 21, 22),
    Sketcher.Constraint("Equal", 22, 23),
    Sketcher.Constraint("Equal", 23, 24),
    Sketcher.Constraint("Equal", 24, 25),
    Sketcher.Constraint("Equal", 25, 26),
    Sketcher.Constraint("Equal", 26, 27),
    Sketcher.Constraint("Horizontal", 0, 3, 1, 3),
    Sketcher.Constraint("Horizontal", 2, 3, 3, 3),
    Sketcher.Constraint("Horizontal", 4, 3, 5, 3),
    Sketcher.Constraint("Horizontal", 6, 3, 7, 3),
    Sketcher.Constraint("Horizontal", 8, 3, 9, 3),
    Sketcher.Constraint("Horizontal", 10, 3, 11, 3),
    Sketcher.Constraint("Horizontal", 12, 3, 13, 3),
    Sketcher.Constraint("Horizontal", 14, 3, 15, 3),
    Sketcher.Constraint("Horizontal", 16, 3, 17, 3),
    Sketcher.Constraint("Horizontal", 18, 3, 19, 3),
    Sketcher.Constraint("Horizontal", 20, 3, 21, 3),
    Sketcher.Constraint("Horizontal", 22, 3, 23, 3),
    Sketcher.Constraint("Horizontal", 24, 3, 25, 3),
    Sketcher.Constraint("Horizontal", 26, 3, 27, 3),
    Sketcher.Constraint("Vertical", 0, 3, 2, 3),
    Sketcher.Constraint("Vertical", 1, 3, 3, 3),
    Sketcher.Constraint("Vertical", 2, 3, 4, 3),
    Sketcher.Constraint("Vertical", 3, 3, 5, 3),
    Sketcher.Constraint("Vertical", 5, 3, 6, 3),
    Sketcher.Constraint("Vertical", 4, 3, 7, 3),
    Sketcher.Constraint("Vertical", 7, 3, 8, 3),
    Sketcher.Constraint("Vertical", 6, 3, 9, 3),
    Sketcher.Constraint("Vertical", 8, 3, 10, 3),
    Sketcher.Constraint("Vertical", 9, 3, 11, 3),
    Sketcher.Constraint("Vertical", 10, 3, 12, 3),
    Sketcher.Constraint("Vertical", 11, 3, 13, 3),
    Sketcher.Constraint("Vertical", 13, 3, 14, 3),
    Sketcher.Constraint("Vertical", 12, 3, 15, 3),
    Sketcher.Constraint("Vertical", 14, 3, 16, 3),
    Sketcher.Constraint("Vertical", 15, 3, 17, 3),
    Sketcher.Constraint("Vertical", 16, 3, 18, 3),
    Sketcher.Constraint("Vertical", 17, 3, 19, 3),
    Sketcher.Constraint("Vertical", 18, 3, 20, 3),
    Sketcher.Constraint("Vertical", 19, 3, 21, 3),
    Sketcher.Constraint("Vertical", 20, 3, 22, 3),
    Sketcher.Constraint("Vertical", 21, 3, 23, 3),
    Sketcher.Constraint("Vertical", 22, 3, 24, 3),
    Sketcher.Constraint("Vertical", 23, 3, 25, 3),
    Sketcher.Constraint("Vertical", 24, 3, 26, 3),
    Sketcher.Constraint("Vertical", 25, 3, 27, 3),
    Sketcher.Constraint("Diameter", 0, Q("3.2 mm")),
    Sketcher.Constraint("DistanceX", -1, 1, 0, 3, Q("6 mm")),
    Sketcher.Constraint("DistanceX", -1, 1, 1, 3, Q("14 mm")),
    Sketcher.Constraint("DistanceY", 2, 3, 0, 3, Q("40 mm")),
    Sketcher.Constraint("DistanceY", 4, 3, 2, 3, Q("8 mm")),
    Sketcher.Constraint("DistanceY", 6, 3, 1, 3, Q("8 mm")),
    Sketcher.Constraint("DistanceY", 0, 3, 8, 3, Q("745 mm")),
    Sketcher.Constraint("DistanceY", 8, 3, 10, 3, Q("40 mm")),
    Sketcher.Constraint("DistanceY", 10, 3, 12, 3, Q("8 mm")),
    Sketcher.Constraint("DistanceY", 9, 3, 14, 3, Q("8 mm")),
    Sketcher.Constraint("DistanceY", 1, 3, 16, 3, Q("140 mm")),
    Sketcher.Constraint("DistanceY", 16, 3, 18, 3, Q("20 mm")),
    Sketcher.Constraint("DistanceY", 18, 3, 20, 3, Q("20 mm")),
    Sketcher.Constraint("DistanceY", 22, 3, 9, 3, Q("140 mm")),
    Sketcher.Constraint("DistanceY", 24, 3, 22, 3, Q("20 mm")),
    Sketcher.Constraint("DistanceY", 26, 3, 24, 3, Q("20 mm")),
    Sketcher.Constraint("DistanceY", -1, 1, 0, 3, Q("537.5 mm")),
])
sketch5.setExpression("Constraints[67]", "Params.sketch5_diameter")
pocket4 = body.newObject("PartDesign::Pocket", "Pocket003")
pocket4.Profile = sketch5
pocket4.Type = "ThroughAll"
pocket4.Reversed = True

# Sketch on XZ plane
sketch6 = body.newObject("Sketcher::SketchObject", "Sketch005")
sketch6.AttachmentSupport = (doc.getObject("XZ_Plane"), [""])
sketch6.MapMode = "FlatFace"
sketch6.AttachmentOffset = App.Placement(Vector(0, 0, -20), App.Rotation())
sketch6.addGeometry([
    Part.Circle(Vector(20, 110, 0), Vector(0, 0, 1), 14),  # 0
    Part.Circle(Vector(20, 148, 0), Vector(0, 0, 1), 14),  # 1
    Part.Circle(Vector(20, 186, 0), Vector(0, 0, 1), 14),  # 2
    Part.Circle(Vector(20, 338, 0), Vector(0, 0, 1), 14),  # 3
    Part.Circle(Vector(20, 376, 0), Vector(0, 0, 1), 14),  # 4
    Part.Circle(Vector(20, 604, 0), Vector(0, 0, 1), 14),  # 5
    Part.Circle(Vector(20, 642, 0), Vector(0, 0, 1), 14),  # 6
    Part.Circle(Vector(20, 680, 0), Vector(0, 0, 1), 14),  # 7
    Part.Circle(Vector(20, 718, 0), Vector(0, 0, 1), 14),  # 8
    Part.Circle(Vector(20, 756, 0), Vector(0, 0, 1), 14),  # 9
    Part.Circle(Vector(20, 794, 0), Vector(0, 0, 1), 14),  # 10
    Part.Circle(Vector(20, 832, 0), Vector(0, 0, 1), 14),  # 11
    Part.Circle(Vector(20, 870, 0), Vector(0, 0, 1), 14),  # 12
    Part.Circle(Vector(20, 908, 0), Vector(0, 0, 1), 14),  # 13
    Part.Circle(Vector(20, 946, 0), Vector(0, 0, 1), 14),  # 14
    Part.Circle(Vector(20, 984, 0), Vector(0, 0, 1), 14),  # 15
    Part.Circle(Vector(20, 1022, 0), Vector(0, 0, 1), 14),  # 16
    Part.Circle(Vector(20, 1060, 0), Vector(0, 0, 1), 14),  # 17
    Part.Circle(Vector(20, 1098, 0), Vector(0, 0, 1), 14),  # 18
    Part.Circle(Vector(20, 1136, 0), Vector(0, 0, 1), 14),  # 19
    Part.Circle(Vector(20, 1174, 0), Vector(0, 0, 1), 14),  # 20
    Part.Circle(Vector(20, 1212, 0), Vector(0, 0, 1), 14),  # 21
    Part.Circle(Vector(20, 1250, 0), Vector(0, 0, 1), 14),  # 22
    Part.Circle(Vector(20, 1326, 0), Vector(0, 0, 1), 14),  # 23
    Part.Circle(Vector(20, 1402, 0), Vector(0, 0, 1), 14),  # 24
    Part.Circle(Vector(20, 1478, 0), Vector(0, 0, 1), 14),  # 25
    Part.Circle(Vector(20, 1516, 0), Vector(0, 0, 1), 14),  # 26
    Part.Circle(Vector(20, 1668, 0), Vector(0, 0, 1), 14),  # 27
    Part.Circle(Vector(20, 1706, 0), Vector(0, 0, 1), 14),  # 28
    Part.Circle(Vector(20, 1744, 0), Vector(0, 0, 1), 14),  # 29
], False)
sketch6.addConstraint([
    Sketcher.Constraint("Equal", 0, 1),
    Sketcher.Constraint("Equal", 1, 2),
    Sketcher.Constraint("Equal", 2, 3),
    Sketcher.Constraint("Equal", 3, 4),
    Sketcher.Constraint("Equal", 4, 5),
    Sketcher.Constraint("Equal", 5, 6),
    Sketcher.Constraint("Equal", 6, 7),
    Sketcher.Constraint("Equal", 7, 8),
    Sketcher.Constraint("Equal", 8, 9),
    Sketcher.Constraint("Equal", 9, 10),
    Sketcher.Constraint("Equal", 10, 11),
    Sketcher.Constraint("Equal", 11, 12),
    Sketcher.Constraint("Equal", 12, 13),
    Sketcher.Constraint("Equal", 13, 14),
    Sketcher.Constraint("Equal", 14, 15),
    Sketcher.Constraint("Equal", 15, 16),
    Sketcher.Constraint("Equal", 16, 17),
    Sketcher.Constraint("Equal", 17, 18),
    Sketcher.Constraint("Equal", 18, 19),
    Sketcher.Constraint("Equal", 19, 20),
    Sketcher.Constraint("Equal", 20, 21),
    Sketcher.Constraint("Equal", 21, 22),
    Sketcher.Constraint("Equal", 22, 23),
    Sketcher.Constraint("Equal", 23, 24),
    Sketcher.Constraint("Equal", 24, 25),
    Sketcher.Constraint("Equal", 25, 26),
    Sketcher.Constraint("Equal", 26, 27),
    Sketcher.Constraint("Equal", 27, 28),
    Sketcher.Constraint("Equal", 28, 29),
    Sketcher.Constraint("Vertical", 0, 3, 1, 3),
    Sketcher.Constraint("Vertical", 1, 3, 2, 3),
    Sketcher.Constraint("Vertical", 2, 3, 3, 3),
    Sketcher.Constraint("Vertical", 3, 3, 4, 3),
    Sketcher.Constraint("Vertical", 4, 3, 5, 3),
    Sketcher.Constraint("Vertical", 5, 3, 6, 3),
    Sketcher.Constraint("Vertical", 6, 3, 7, 3),
    Sketcher.Constraint("Vertical", 7, 3, 8, 3),
    Sketcher.Constraint("Vertical", 8, 3, 9, 3),
    Sketcher.Constraint("Vertical", 9, 3, 10, 3),
    Sketcher.Constraint("Vertical", 10, 3, 11, 3),
    Sketcher.Constraint("Vertical", 11, 3, 12, 3),
    Sketcher.Constraint("Vertical", 12, 3, 13, 3),
    Sketcher.Constraint("Vertical", 13, 3, 14, 3),
    Sketcher.Constraint("Vertical", 14, 3, 15, 3),
    Sketcher.Constraint("Vertical", 15, 3, 16, 3),
    Sketcher.Constraint("Vertical", 16, 3, 17, 3),
    Sketcher.Constraint("Vertical", 17, 3, 18, 3),
    Sketcher.Constraint("Vertical", 18, 3, 19, 3),
    Sketcher.Constraint("Vertical", 19, 3, 20, 3),
    Sketcher.Constraint("Vertical", 20, 3, 21, 3),
    Sketcher.Constraint("Vertical", 21, 3, 22, 3),
    Sketcher.Constraint("Vertical", 22, 3, 23, 3),
    Sketcher.Constraint("Vertical", 23, 3, 24, 3),
    Sketcher.Constraint("Vertical", 24, 3, 25, 3),
    Sketcher.Constraint("Vertical", 25, 3, 26, 3),
    Sketcher.Constraint("Vertical", 26, 3, 27, 3),
    Sketcher.Constraint("Vertical", 27, 3, 28, 3),
    Sketcher.Constraint("Vertical", 28, 3, 29, 3),
    Sketcher.Constraint("Diameter", 0, Q("28 mm")),
    Sketcher.Constraint("DistanceX", -1, 1, 0, 3, Q("20 mm")),
    Sketcher.Constraint("DistanceY", -1, 1, 0, 3, Q("110 mm")),
    Sketcher.Constraint("DistanceY", -1, 1, 1, 3, Q("148 mm")),
    Sketcher.Constraint("DistanceY", -1, 1, 2, 3, Q("186 mm")),
    Sketcher.Constraint("DistanceY", -1, 1, 3, 3, Q("338 mm")),
    Sketcher.Constraint("DistanceY", -1, 1, 4, 3, Q("376 mm")),
    Sketcher.Constraint("DistanceY", -1, 1, 5, 3, Q("604 mm")),
    Sketcher.Constraint("DistanceY", -1, 1, 6, 3, Q("642 mm")),
    Sketcher.Constraint("DistanceY", -1, 1, 7, 3, Q("680 mm")),
    Sketcher.Constraint("DistanceY", -1, 1, 8, 3, Q("718 mm")),
    Sketcher.Constraint("DistanceY", -1, 1, 9, 3, Q("756 mm")),
    Sketcher.Constraint("DistanceY", -1, 1, 10, 3, Q("794 mm")),
    Sketcher.Constraint("DistanceY", -1, 1, 11, 3, Q("832 mm")),
    Sketcher.Constraint("DistanceY", -1, 1, 12, 3, Q("870 mm")),
    Sketcher.Constraint("DistanceY", -1, 1, 13, 3, Q("908 mm")),
    Sketcher.Constraint("DistanceY", -1, 1, 14, 3, Q("946 mm")),
    Sketcher.Constraint("DistanceY", -1, 1, 15, 3, Q("984 mm")),
    Sketcher.Constraint("DistanceY", -1, 1, 16, 3, Q("1022 mm")),
    Sketcher.Constraint("DistanceY", -1, 1, 17, 3, Q("1060 mm")),
    Sketcher.Constraint("DistanceY", -1, 1, 18, 3, Q("1098 mm")),
    Sketcher.Constraint("DistanceY", -1, 1, 19, 3, Q("1136 mm")),
    Sketcher.Constraint("DistanceY", -1, 1, 20, 3, Q("1174 mm")),
    Sketcher.Constraint("DistanceY", -1, 1, 21, 3, Q("1212 mm")),
    Sketcher.Constraint("DistanceY", -1, 1, 22, 3, Q("1250 mm")),
    Sketcher.Constraint("DistanceY", -1, 1, 23, 3, Q("1326 mm")),
    Sketcher.Constraint("DistanceY", -1, 1, 24, 3, Q("1402 mm")),
    Sketcher.Constraint("DistanceY", -1, 1, 25, 3, Q("1478 mm")),
    Sketcher.Constraint("DistanceY", -1, 1, 26, 3, Q("1516 mm")),
    Sketcher.Constraint("DistanceY", -1, 1, 27, 3, Q("1668 mm")),
    Sketcher.Constraint("DistanceY", -1, 1, 28, 3, Q("1706 mm")),
    Sketcher.Constraint("DistanceY", -1, 1, 29, 3, Q("1744 mm")),
])
sketch6.setExpression("Constraints[58]", "Params.sketch6_diameter")
pocket5 = body.newObject("PartDesign::Pocket", "Pocket004")
pocket5.Profile = sketch6
pocket5.Type = "ThroughAll"
pocket5.Reversed = True

doc.recompute()
